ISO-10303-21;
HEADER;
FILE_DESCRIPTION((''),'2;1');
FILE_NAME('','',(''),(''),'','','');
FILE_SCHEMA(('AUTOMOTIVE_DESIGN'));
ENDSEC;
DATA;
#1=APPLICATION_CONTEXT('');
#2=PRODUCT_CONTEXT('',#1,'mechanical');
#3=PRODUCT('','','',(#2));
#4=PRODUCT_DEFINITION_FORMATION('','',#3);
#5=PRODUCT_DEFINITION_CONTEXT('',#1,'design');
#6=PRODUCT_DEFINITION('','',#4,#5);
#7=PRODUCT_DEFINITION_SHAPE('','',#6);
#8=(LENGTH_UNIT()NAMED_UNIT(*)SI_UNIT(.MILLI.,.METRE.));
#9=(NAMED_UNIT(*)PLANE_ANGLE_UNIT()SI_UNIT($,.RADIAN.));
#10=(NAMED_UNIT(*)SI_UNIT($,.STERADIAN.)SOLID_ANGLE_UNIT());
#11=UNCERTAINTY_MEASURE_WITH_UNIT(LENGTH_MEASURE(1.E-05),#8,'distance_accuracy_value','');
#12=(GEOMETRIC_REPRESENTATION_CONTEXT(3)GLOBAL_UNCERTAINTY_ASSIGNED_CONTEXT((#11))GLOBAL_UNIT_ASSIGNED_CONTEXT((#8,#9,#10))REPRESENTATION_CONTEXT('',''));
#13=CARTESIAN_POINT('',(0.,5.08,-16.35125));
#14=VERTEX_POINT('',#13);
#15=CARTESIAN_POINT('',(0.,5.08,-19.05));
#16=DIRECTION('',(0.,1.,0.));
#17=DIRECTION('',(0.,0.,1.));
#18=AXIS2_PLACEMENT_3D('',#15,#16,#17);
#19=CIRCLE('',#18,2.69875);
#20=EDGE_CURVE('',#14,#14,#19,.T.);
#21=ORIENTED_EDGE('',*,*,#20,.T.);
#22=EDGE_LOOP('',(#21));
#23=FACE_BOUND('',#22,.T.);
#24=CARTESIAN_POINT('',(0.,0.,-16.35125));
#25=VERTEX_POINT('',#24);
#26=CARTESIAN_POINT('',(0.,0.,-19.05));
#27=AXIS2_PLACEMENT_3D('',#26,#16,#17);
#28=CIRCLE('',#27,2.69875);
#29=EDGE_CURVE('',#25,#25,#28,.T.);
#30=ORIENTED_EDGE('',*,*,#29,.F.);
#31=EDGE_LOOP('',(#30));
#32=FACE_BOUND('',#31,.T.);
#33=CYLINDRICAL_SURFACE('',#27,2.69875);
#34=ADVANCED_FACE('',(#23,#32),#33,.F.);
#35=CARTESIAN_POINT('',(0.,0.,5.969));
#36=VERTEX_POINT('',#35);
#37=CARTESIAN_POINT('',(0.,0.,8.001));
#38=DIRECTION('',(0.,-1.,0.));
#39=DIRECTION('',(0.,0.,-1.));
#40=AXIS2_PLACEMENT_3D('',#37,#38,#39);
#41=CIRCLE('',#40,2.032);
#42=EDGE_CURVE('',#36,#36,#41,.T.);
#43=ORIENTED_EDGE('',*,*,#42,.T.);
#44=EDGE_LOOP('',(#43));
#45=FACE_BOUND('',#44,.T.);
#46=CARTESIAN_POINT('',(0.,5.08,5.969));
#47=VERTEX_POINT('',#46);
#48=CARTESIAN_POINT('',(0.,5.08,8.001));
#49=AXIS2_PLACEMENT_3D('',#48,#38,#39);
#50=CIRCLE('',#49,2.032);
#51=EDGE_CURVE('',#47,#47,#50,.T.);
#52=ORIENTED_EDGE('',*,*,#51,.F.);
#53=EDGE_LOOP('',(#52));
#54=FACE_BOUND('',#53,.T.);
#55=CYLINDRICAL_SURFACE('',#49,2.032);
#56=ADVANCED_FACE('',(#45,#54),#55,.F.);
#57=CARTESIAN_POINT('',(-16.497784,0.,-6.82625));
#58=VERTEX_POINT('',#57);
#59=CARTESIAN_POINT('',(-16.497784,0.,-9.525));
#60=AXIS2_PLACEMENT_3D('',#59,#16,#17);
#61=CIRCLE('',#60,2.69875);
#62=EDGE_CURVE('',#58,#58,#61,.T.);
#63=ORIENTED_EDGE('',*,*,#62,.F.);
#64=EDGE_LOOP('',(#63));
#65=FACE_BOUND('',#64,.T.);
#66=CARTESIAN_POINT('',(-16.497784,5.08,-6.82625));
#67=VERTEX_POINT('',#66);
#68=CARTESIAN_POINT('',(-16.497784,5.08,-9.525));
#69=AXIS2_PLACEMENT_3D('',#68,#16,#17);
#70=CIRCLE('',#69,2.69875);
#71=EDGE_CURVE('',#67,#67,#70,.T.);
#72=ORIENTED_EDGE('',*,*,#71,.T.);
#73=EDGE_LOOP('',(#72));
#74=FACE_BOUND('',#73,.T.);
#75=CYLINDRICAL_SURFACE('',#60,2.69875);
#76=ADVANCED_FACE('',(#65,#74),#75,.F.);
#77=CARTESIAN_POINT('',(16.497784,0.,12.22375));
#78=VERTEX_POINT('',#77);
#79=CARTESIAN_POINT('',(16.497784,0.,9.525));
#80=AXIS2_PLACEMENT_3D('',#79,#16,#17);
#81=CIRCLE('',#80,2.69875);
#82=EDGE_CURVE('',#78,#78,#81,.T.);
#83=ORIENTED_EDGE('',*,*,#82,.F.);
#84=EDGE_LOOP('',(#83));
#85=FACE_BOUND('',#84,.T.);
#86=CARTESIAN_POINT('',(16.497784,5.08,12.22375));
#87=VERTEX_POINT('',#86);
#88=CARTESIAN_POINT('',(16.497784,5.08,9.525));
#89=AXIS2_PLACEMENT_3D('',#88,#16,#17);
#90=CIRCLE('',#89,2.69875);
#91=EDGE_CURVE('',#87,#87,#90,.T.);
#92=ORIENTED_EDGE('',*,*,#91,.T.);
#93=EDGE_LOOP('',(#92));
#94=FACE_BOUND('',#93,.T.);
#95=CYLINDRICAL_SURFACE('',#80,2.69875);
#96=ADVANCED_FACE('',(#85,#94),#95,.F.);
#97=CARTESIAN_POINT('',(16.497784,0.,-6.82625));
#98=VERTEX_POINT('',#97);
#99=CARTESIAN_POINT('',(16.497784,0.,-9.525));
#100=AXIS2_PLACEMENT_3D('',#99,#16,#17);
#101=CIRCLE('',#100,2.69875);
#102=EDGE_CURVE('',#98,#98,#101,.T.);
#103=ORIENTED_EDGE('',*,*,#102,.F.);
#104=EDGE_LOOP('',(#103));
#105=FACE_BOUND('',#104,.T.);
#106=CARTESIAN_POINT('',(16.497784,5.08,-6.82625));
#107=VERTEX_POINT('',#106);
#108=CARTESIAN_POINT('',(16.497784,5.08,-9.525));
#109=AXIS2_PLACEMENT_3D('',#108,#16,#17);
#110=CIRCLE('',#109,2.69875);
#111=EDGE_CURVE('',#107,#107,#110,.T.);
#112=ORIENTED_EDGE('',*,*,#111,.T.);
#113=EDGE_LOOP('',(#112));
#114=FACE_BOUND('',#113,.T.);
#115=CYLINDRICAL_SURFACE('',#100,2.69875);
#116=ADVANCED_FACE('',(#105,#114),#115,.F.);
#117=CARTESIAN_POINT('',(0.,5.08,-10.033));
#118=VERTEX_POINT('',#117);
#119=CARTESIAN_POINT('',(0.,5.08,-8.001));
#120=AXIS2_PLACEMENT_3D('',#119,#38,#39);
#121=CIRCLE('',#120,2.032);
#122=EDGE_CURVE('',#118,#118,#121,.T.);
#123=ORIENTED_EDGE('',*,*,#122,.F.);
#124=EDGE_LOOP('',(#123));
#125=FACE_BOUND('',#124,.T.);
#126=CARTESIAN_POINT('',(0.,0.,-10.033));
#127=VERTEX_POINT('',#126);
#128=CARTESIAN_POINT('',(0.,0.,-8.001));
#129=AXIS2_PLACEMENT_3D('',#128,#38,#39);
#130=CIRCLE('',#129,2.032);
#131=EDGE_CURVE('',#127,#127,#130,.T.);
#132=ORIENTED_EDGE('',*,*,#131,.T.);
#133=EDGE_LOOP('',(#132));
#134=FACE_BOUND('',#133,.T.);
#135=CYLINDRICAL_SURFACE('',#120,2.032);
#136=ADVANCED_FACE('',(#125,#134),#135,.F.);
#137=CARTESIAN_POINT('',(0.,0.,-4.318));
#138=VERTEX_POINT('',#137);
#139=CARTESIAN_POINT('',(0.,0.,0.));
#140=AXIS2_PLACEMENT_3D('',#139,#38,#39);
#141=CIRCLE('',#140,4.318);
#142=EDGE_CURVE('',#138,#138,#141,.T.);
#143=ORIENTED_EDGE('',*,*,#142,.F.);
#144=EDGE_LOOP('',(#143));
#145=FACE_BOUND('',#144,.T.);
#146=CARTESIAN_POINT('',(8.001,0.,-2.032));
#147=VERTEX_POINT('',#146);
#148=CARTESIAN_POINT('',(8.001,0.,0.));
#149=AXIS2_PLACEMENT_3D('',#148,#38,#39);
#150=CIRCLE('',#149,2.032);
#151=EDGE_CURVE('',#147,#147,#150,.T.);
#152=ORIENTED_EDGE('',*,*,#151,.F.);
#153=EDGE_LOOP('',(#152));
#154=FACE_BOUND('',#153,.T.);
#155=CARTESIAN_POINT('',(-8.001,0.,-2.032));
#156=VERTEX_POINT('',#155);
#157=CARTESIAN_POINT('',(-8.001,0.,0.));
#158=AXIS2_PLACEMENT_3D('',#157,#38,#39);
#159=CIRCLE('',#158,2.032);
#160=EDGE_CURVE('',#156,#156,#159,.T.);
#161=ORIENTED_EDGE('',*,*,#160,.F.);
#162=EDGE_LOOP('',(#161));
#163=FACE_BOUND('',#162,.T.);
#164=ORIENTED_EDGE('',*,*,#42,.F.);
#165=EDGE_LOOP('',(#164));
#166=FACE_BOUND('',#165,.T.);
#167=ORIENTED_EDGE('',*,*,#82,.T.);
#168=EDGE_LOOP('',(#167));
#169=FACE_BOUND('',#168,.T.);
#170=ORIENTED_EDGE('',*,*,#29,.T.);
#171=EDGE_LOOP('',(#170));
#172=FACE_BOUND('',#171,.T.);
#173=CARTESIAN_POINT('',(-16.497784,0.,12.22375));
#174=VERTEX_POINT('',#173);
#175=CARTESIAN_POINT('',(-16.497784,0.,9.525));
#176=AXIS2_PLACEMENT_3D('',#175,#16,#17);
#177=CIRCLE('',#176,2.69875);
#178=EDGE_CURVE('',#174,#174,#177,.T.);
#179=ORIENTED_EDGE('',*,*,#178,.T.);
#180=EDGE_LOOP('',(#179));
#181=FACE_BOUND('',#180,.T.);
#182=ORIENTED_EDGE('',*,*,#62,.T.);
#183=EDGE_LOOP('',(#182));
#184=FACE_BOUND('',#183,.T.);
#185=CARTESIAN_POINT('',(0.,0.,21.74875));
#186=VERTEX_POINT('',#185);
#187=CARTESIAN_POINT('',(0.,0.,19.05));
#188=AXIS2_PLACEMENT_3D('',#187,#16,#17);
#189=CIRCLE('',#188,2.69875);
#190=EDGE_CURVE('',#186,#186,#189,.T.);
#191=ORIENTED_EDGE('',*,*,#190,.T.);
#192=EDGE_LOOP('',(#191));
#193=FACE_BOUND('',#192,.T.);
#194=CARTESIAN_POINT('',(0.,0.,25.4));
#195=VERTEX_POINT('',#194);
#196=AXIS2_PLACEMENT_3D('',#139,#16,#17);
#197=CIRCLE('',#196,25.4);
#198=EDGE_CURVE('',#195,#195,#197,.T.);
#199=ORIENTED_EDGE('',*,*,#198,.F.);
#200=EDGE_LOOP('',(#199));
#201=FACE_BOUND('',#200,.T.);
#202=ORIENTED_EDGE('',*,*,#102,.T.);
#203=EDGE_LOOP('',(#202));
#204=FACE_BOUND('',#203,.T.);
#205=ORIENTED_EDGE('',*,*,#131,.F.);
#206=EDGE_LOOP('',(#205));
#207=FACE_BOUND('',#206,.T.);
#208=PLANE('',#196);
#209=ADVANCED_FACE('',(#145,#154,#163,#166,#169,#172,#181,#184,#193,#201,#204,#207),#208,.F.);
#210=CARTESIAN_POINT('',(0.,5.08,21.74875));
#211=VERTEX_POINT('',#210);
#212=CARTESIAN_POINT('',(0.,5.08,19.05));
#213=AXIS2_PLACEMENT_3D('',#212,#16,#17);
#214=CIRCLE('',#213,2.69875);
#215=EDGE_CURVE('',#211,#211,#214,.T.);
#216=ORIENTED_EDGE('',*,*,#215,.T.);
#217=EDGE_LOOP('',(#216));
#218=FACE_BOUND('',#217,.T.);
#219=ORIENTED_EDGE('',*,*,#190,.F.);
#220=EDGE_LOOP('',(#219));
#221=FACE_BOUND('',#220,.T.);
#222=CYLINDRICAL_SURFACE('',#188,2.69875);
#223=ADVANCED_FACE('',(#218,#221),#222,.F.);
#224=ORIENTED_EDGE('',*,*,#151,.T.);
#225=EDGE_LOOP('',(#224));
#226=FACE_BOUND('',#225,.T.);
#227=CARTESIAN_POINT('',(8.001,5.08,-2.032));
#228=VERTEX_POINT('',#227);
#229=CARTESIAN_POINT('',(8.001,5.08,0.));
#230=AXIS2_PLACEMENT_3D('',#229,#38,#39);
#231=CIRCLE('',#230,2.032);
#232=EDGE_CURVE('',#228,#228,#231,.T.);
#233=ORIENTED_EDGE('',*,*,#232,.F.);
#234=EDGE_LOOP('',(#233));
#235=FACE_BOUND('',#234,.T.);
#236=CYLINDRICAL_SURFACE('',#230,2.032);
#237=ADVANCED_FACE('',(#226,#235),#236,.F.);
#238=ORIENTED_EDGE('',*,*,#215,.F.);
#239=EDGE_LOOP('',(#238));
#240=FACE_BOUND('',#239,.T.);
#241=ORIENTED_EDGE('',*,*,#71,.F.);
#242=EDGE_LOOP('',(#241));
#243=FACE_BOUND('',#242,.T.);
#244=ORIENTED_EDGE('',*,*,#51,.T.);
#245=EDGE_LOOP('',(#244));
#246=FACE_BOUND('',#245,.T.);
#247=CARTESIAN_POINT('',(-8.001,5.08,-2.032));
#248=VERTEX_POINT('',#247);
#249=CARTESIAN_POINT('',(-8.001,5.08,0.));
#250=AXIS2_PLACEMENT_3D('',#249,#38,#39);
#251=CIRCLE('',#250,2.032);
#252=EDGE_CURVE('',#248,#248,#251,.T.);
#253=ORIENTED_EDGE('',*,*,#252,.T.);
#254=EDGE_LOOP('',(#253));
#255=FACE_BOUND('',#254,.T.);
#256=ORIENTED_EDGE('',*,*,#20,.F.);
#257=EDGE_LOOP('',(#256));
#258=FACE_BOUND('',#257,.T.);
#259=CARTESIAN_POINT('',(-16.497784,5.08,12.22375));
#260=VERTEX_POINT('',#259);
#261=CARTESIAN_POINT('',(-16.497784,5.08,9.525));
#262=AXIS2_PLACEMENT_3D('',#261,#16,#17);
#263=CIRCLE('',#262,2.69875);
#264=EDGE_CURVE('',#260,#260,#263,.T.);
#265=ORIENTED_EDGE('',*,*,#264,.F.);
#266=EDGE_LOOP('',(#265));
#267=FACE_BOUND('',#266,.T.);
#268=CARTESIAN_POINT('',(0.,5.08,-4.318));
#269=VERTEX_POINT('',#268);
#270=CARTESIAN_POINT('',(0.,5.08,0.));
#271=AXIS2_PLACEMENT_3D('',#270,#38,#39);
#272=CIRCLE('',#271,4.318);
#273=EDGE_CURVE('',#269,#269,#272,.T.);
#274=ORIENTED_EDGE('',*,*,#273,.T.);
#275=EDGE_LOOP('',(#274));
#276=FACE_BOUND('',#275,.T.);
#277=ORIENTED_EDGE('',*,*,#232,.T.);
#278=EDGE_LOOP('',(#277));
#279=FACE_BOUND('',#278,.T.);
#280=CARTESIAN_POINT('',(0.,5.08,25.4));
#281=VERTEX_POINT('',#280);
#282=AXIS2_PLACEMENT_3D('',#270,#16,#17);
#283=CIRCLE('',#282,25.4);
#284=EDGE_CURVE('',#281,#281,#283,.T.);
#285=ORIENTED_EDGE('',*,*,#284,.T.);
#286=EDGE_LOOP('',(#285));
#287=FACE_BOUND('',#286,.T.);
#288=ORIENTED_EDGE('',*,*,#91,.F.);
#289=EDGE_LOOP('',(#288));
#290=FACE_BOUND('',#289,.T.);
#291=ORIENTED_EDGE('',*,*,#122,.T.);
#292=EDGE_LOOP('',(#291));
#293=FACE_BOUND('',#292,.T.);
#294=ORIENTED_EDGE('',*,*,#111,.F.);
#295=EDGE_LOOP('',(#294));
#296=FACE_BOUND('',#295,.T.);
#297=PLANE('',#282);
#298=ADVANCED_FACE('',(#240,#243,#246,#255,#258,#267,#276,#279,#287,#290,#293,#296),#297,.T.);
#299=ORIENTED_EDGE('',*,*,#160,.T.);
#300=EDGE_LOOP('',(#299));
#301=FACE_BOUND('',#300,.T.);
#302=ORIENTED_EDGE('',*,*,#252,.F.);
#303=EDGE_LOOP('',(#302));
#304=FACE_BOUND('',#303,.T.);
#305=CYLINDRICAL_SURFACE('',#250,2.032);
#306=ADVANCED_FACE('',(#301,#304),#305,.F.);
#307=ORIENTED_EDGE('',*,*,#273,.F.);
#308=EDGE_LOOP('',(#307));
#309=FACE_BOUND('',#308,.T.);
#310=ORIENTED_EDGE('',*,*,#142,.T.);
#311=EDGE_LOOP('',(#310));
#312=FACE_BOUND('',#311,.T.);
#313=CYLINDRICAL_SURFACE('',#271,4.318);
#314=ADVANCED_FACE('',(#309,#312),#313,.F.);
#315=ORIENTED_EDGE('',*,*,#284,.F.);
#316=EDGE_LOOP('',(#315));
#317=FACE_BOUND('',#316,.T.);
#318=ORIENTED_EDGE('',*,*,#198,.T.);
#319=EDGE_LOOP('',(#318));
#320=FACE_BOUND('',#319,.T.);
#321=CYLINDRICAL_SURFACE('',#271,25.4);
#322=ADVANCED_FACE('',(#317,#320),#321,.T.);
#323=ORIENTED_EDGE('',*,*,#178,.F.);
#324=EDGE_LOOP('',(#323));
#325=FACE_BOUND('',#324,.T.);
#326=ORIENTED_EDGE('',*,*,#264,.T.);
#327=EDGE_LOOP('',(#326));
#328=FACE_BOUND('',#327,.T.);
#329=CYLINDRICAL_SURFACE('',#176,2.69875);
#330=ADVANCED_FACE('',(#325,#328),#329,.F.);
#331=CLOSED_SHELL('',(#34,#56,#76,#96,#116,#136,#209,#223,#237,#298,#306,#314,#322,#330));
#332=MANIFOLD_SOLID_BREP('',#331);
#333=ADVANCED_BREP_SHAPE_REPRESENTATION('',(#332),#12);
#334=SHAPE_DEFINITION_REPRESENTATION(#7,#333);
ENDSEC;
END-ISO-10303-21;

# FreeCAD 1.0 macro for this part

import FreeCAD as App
import Part
import Sketcher
Q = App.Units.Quantity

doc = App.newDocument("Part")
body = doc.addObject("PartDesign::Body", "Body")

# Sketch on XZ plane
sketch1 = body.newObject("Sketcher::SketchObject", "Sketch")
sketch1.AttachmentSupport = (doc.getObject("XZ_Plane"), [""])
sketch1.MapMode = "FlatFace"
sketch1.addGeometry(Part.Circle(App.Vector(0, 0, 0), App.Vector(0, 0, 1), 25), False)
sketch1.addConstraint([
    Sketcher.Constraint("Coincident", 0, 3, -1, 1),
    Sketcher.Constraint("Diameter", 0, Q("2 in")),
])
pad1 = body.newObject("PartDesign::Pad", "Pad")
pad1.Profile = sketch1
pad1.Length = Q("0.2 in")
pad1.Reversed = True

# Sketch on XZ plane
sketch2 = body.newObject("Sketcher::SketchObject", "Sketch001")
sketch2.AttachmentSupport = (doc.getObject("XZ_Plane"), [""])
sketch2.MapMode = "FlatFace"
sketch2.AttachmentOffset = App.Placement(App.Vector(0, 0, -0.2 * 25.4), App.Rotation())
sketch2.addGeometry([
    Part.Circle(App.Vector(0, 19.1, 0), App.Vector(0, 0, 1), 2.7),  # 0
    Part.Circle(App.Vector(-16.5, 9.5, 0), App.Vector(0, 0, 1), 2.7),  # 1
    Part.Circle(App.Vector(-16.5, -9.5, 0), App.Vector(0, 0, 1), 2.7),  # 2
    Part.Circle(App.Vector(0, -19.1, 0), App.Vector(0, 0, 1), 2.7),  # 3
    Part.Circle(App.Vector(16.5, -9.5, 0), App.Vector(0, 0, 1), 2.7),  # 4
    Part.Circle(App.Vector(16.5, 9.5, 0), App.Vector(0, 0, 1), 2.7),  # 5
], False)
sketch2.addConstraint([
    Sketcher.Constraint("Equal", 0, 1),
    Sketcher.Constraint("Equal", 1, 2),
    Sketcher.Constraint("Equal", 2, 3),
    Sketcher.Constraint("Equal", 3, 4),
    Sketcher.Constraint("Equal", 4, 5),
    Sketcher.Constraint("Symmetric", 0, 3, 3, 3, -1, 1),
    Sketcher.Constraint("Symmetric", 1, 3, 4, 3, -1, 1),
    Sketcher.Constraint("Symmetric", 2, 3, 5, 3, -1, 1),
    Sketcher.Constraint("Symmetric", 2, 3, 4, 3, -2),
    Sketcher.Constraint("PointOnObject", 0, 3, -2),
    Sketcher.Constraint("Diameter", 0, Q("0.2125 in")),
    Sketcher.Constraint("DistanceY", 3, 3, 0, 3, Q("1.5 in")),
    Sketcher.Constraint("DistanceY", 2, 3, 1, 3, Q("0.75 in")),
    Sketcher.Constraint("DistanceX", 1, 3, -1, 1, 16.497784),
])
pocket1 = body.newObject("PartDesign::Pocket", "Pocket")
pocket1.Profile = sketch2
pocket1.Length = Q("0.2 in")
pocket1.Reversed = True

# Sketch on XZ plane
sketch3 = body.newObject("Sketcher::SketchObject", "Sketch002")
sketch3.AttachmentSupport = (doc.getObject("XZ_Plane"), [""])
sketch3.MapMode = "FlatFace"
sketch3.addGeometry([
    Part.Circle(App.Vector(0, 0, 0), App.Vector(0, 0, 1), 4.3),  # 0
    Part.Circle(App.Vector(0, -8, 0), App.Vector(0, 0, 1), 2),  # 1
    Part.Circle(App.Vector(-8, 0, 0), App.Vector(0, 0, 1), 2),  # 2
    Part.Circle(App.Vector(0, 8, 0), App.Vector(0, 0, 1), 2),  # 3
    Part.Circle(App.Vector(8, 0, 0), App.Vector(0, 0, 1), 2),  # 4
], False)
sketch3.addConstraint([
    Sketcher.Constraint("Coincident", 0, 3, -1, 1),
    Sketcher.Constraint("Equal", 1, 2),
    Sketcher.Constraint("Equal", 2, 3),
    Sketcher.Constraint("Equal", 3, 4),
    Sketcher.Constraint("Symmetric", 1, 3, 3, 3, -1, 1),
    Sketcher.Constraint("Symmetric", 2, 3, 4, 3, -1, 1),
    Sketcher.Constraint("PointOnObject", 1, 3, -2),
    Sketcher.Constraint("PointOnObject", 2, 3, -1),
    Sketcher.Constraint("Diameter", 0, Q("0.34 in")),
    Sketcher.Constraint("Diameter", 1, Q("0.16 in")),
    Sketcher.Constraint("DistanceY", 1, 3, 3, 3, Q("0.63 in")),
    Sketcher.Constraint("DistanceX", 2, 3, 4, 3, Q("0.63 in")),
])
pocket2 = body.newObject("PartDesign::Pocket", "Pocket001")
pocket2.Profile = sketch3
pocket2.Length = Q("0.2 in")

doc.recompute()
